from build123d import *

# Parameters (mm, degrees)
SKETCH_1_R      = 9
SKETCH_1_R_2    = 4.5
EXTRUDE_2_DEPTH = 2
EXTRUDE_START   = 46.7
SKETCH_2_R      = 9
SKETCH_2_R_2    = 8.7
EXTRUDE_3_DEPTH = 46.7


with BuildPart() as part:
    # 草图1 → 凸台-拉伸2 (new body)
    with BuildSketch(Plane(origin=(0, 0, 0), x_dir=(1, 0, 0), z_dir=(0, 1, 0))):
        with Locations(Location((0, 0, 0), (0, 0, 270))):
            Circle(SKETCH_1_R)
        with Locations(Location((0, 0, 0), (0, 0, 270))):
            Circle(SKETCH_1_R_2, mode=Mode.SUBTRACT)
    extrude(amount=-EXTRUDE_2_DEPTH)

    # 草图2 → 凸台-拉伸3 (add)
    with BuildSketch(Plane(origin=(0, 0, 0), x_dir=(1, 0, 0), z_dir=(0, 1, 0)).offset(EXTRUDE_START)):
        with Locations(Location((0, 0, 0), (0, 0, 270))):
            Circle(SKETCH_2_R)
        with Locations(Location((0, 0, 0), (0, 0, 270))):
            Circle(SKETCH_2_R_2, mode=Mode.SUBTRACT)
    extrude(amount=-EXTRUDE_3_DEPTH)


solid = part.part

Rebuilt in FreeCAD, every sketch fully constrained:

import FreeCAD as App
import Part
import Sketcher

doc = App.newDocument("Part")
body = doc.addObject("PartDesign::Body", "Body")

# Sketch on XZ plane
sketch1 = doc.addObject("Sketcher::SketchObject", "Sketch")
body.addObject(sketch1)
sketch1.AttachmentSupport = (doc.XZ_Plane, [""])
sketch1.MapMode = "FlatFace"
sketch1.addGeometry([
    Part.Circle(App.Vector(0, 0, 0), App.Vector(0, 0, 1), 9),
    Part.Circle(App.Vector(0, 0, 0), App.Vector(0, 0, 1), 4.5),
], False)
sketch1.addConstraint([
    Sketcher.Constraint("Coincident", 0, 3, -1, 1),
    Sketcher.Constraint("Coincident", 1, 3, -1, 1),
    Sketcher.Constraint("Diameter", 0, 18.0),
    Sketcher.Constraint("Diameter", 1, 9.0),
])
pad1 = doc.addObject("PartDesign::Pad", "Pad")
body.addObject(pad1)
pad1.Profile = sketch1
pad1.Length = 2

# Sketch on XZ plane
sketch2 = doc.addObject("Sketcher::SketchObject", "Sketch001")
body.addObject(sketch2)
sketch2.AttachmentSupport = (doc.XZ_Plane, [""])
sketch2.MapMode = "FlatFace"
sketch2.AttachmentOffset = App.Placement(App.Vector(0, 0, -46.7), App.Rotation())
sketch2.addGeometry([
    Part.Circle(App.Vector(0, 0, 0), App.Vector(0, 0, 1), 9),
    Part.Circle(App.Vector(0, 0, 0), App.Vector(0, 0, 1), 8.7),
], False)
sketch2.addConstraint([
    Sketcher.Constraint("Coincident", 0, 3, -1, 1),
    Sketcher.Constraint("Coincident", 1, 3, -1, 1),
    Sketcher.Constraint("Diameter", 0, 18.0),
    Sketcher.Constraint("Diameter", 1, 17.4),
])
pad2 = doc.addObject("PartDesign::Pad", "Pad001")
body.addObject(pad2)
pad2.Profile = sketch2
pad2.Length = 46.7

doc.recompute()
